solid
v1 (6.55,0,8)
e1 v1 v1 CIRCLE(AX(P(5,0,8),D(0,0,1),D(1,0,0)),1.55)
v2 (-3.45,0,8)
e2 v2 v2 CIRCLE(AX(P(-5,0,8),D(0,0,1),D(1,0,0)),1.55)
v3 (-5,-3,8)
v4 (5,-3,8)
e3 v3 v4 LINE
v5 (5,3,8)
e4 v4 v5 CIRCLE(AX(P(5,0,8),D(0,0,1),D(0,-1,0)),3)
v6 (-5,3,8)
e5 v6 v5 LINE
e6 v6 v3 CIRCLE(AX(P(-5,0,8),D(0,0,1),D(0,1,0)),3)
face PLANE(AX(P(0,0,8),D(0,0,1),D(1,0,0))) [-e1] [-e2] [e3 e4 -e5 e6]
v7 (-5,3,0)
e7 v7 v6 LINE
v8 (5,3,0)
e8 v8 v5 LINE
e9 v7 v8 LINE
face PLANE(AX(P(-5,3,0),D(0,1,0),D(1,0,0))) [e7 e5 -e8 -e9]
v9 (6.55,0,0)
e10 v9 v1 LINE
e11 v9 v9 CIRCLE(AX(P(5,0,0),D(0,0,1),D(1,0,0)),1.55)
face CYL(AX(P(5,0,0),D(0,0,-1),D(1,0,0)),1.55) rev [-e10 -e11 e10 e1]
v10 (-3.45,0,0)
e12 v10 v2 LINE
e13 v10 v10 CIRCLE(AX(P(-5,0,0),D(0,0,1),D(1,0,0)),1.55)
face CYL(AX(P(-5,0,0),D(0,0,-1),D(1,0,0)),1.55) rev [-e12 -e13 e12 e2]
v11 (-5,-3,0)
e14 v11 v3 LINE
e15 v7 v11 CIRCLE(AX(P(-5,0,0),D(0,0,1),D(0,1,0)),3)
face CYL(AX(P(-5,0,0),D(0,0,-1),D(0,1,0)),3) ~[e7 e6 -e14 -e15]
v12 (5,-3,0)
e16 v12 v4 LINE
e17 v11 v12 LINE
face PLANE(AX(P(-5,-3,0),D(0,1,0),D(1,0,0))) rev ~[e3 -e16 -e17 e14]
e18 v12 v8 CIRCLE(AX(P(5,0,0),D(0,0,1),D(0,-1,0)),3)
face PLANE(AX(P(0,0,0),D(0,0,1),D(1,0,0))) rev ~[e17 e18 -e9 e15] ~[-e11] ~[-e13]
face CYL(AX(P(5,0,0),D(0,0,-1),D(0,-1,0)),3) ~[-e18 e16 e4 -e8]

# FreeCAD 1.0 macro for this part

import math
import FreeCAD as App
import Part
import Sketcher
Q = App.Units.Quantity

doc = App.newDocument("Part")
body = doc.addObject("PartDesign::Body", "Body")

sketch1 = body.newObject("Sketcher::SketchObject", "Sketch")
sketch1.AttachmentSupport = (doc.getObject("XY_Plane"), [""])
sketch1.MapMode = "FlatFace"
sketch1.addGeometry([
    Part.LineSegment(App.Vector(5, 3, 0), App.Vector(-5, 3, 0)),
    Part.ArcOfCircle(Part.Circle(App.Vector(-5, 0, 0), App.Vector(0, 0, 1), 3), math.radians(90), math.radians(270)),
    Part.LineSegment(App.Vector(-5, -3, 0), App.Vector(5, -3, 0)),
    Part.ArcOfCircle(Part.Circle(App.Vector(5, 0, 0), App.Vector(0, 0, 1), 3), math.radians(-90), math.radians(90)),
    Part.Circle(App.Vector(-5, 0, 0), App.Vector(0, 0, 1), 1.6),
    Part.Circle(App.Vector(5, 0, 0), App.Vector(0, 0, 1), 1.6),
], False)
sketch1.addConstraint([
    Sketcher.Constraint("Tangent", 0, 2, 1, 1),
    Sketcher.Constraint("Tangent", 1, 2, 2, 1),
    Sketcher.Constraint("Tangent", 2, 2, 3, 1),
    Sketcher.Constraint("Tangent", 3, 2, 0, 1),
    Sketcher.Constraint("Horizontal", 0),
    Sketcher.Constraint("Horizontal", 2),
    Sketcher.Constraint("Coincident", 4, 3, 1, 3),
    Sketcher.Constraint("Coincident", 5, 3, 3, 3),
    Sketcher.Constraint("Equal", 4, 5),
    Sketcher.Constraint("Symmetric", 1, 3, 3, 3, -1, 1),
    Sketcher.Constraint("Radius", 1, Q("3 mm")),
    Sketcher.Constraint("Diameter", 4, Q("3.1 mm")),
    Sketcher.Constraint("DistanceX", 1, 3, -1, 1, Q("5 mm")),
])
pad1 = body.newObject("PartDesign::Pad", "Pad")
pad1.Profile = sketch1
pad1.Length = 8

doc.recompute()
